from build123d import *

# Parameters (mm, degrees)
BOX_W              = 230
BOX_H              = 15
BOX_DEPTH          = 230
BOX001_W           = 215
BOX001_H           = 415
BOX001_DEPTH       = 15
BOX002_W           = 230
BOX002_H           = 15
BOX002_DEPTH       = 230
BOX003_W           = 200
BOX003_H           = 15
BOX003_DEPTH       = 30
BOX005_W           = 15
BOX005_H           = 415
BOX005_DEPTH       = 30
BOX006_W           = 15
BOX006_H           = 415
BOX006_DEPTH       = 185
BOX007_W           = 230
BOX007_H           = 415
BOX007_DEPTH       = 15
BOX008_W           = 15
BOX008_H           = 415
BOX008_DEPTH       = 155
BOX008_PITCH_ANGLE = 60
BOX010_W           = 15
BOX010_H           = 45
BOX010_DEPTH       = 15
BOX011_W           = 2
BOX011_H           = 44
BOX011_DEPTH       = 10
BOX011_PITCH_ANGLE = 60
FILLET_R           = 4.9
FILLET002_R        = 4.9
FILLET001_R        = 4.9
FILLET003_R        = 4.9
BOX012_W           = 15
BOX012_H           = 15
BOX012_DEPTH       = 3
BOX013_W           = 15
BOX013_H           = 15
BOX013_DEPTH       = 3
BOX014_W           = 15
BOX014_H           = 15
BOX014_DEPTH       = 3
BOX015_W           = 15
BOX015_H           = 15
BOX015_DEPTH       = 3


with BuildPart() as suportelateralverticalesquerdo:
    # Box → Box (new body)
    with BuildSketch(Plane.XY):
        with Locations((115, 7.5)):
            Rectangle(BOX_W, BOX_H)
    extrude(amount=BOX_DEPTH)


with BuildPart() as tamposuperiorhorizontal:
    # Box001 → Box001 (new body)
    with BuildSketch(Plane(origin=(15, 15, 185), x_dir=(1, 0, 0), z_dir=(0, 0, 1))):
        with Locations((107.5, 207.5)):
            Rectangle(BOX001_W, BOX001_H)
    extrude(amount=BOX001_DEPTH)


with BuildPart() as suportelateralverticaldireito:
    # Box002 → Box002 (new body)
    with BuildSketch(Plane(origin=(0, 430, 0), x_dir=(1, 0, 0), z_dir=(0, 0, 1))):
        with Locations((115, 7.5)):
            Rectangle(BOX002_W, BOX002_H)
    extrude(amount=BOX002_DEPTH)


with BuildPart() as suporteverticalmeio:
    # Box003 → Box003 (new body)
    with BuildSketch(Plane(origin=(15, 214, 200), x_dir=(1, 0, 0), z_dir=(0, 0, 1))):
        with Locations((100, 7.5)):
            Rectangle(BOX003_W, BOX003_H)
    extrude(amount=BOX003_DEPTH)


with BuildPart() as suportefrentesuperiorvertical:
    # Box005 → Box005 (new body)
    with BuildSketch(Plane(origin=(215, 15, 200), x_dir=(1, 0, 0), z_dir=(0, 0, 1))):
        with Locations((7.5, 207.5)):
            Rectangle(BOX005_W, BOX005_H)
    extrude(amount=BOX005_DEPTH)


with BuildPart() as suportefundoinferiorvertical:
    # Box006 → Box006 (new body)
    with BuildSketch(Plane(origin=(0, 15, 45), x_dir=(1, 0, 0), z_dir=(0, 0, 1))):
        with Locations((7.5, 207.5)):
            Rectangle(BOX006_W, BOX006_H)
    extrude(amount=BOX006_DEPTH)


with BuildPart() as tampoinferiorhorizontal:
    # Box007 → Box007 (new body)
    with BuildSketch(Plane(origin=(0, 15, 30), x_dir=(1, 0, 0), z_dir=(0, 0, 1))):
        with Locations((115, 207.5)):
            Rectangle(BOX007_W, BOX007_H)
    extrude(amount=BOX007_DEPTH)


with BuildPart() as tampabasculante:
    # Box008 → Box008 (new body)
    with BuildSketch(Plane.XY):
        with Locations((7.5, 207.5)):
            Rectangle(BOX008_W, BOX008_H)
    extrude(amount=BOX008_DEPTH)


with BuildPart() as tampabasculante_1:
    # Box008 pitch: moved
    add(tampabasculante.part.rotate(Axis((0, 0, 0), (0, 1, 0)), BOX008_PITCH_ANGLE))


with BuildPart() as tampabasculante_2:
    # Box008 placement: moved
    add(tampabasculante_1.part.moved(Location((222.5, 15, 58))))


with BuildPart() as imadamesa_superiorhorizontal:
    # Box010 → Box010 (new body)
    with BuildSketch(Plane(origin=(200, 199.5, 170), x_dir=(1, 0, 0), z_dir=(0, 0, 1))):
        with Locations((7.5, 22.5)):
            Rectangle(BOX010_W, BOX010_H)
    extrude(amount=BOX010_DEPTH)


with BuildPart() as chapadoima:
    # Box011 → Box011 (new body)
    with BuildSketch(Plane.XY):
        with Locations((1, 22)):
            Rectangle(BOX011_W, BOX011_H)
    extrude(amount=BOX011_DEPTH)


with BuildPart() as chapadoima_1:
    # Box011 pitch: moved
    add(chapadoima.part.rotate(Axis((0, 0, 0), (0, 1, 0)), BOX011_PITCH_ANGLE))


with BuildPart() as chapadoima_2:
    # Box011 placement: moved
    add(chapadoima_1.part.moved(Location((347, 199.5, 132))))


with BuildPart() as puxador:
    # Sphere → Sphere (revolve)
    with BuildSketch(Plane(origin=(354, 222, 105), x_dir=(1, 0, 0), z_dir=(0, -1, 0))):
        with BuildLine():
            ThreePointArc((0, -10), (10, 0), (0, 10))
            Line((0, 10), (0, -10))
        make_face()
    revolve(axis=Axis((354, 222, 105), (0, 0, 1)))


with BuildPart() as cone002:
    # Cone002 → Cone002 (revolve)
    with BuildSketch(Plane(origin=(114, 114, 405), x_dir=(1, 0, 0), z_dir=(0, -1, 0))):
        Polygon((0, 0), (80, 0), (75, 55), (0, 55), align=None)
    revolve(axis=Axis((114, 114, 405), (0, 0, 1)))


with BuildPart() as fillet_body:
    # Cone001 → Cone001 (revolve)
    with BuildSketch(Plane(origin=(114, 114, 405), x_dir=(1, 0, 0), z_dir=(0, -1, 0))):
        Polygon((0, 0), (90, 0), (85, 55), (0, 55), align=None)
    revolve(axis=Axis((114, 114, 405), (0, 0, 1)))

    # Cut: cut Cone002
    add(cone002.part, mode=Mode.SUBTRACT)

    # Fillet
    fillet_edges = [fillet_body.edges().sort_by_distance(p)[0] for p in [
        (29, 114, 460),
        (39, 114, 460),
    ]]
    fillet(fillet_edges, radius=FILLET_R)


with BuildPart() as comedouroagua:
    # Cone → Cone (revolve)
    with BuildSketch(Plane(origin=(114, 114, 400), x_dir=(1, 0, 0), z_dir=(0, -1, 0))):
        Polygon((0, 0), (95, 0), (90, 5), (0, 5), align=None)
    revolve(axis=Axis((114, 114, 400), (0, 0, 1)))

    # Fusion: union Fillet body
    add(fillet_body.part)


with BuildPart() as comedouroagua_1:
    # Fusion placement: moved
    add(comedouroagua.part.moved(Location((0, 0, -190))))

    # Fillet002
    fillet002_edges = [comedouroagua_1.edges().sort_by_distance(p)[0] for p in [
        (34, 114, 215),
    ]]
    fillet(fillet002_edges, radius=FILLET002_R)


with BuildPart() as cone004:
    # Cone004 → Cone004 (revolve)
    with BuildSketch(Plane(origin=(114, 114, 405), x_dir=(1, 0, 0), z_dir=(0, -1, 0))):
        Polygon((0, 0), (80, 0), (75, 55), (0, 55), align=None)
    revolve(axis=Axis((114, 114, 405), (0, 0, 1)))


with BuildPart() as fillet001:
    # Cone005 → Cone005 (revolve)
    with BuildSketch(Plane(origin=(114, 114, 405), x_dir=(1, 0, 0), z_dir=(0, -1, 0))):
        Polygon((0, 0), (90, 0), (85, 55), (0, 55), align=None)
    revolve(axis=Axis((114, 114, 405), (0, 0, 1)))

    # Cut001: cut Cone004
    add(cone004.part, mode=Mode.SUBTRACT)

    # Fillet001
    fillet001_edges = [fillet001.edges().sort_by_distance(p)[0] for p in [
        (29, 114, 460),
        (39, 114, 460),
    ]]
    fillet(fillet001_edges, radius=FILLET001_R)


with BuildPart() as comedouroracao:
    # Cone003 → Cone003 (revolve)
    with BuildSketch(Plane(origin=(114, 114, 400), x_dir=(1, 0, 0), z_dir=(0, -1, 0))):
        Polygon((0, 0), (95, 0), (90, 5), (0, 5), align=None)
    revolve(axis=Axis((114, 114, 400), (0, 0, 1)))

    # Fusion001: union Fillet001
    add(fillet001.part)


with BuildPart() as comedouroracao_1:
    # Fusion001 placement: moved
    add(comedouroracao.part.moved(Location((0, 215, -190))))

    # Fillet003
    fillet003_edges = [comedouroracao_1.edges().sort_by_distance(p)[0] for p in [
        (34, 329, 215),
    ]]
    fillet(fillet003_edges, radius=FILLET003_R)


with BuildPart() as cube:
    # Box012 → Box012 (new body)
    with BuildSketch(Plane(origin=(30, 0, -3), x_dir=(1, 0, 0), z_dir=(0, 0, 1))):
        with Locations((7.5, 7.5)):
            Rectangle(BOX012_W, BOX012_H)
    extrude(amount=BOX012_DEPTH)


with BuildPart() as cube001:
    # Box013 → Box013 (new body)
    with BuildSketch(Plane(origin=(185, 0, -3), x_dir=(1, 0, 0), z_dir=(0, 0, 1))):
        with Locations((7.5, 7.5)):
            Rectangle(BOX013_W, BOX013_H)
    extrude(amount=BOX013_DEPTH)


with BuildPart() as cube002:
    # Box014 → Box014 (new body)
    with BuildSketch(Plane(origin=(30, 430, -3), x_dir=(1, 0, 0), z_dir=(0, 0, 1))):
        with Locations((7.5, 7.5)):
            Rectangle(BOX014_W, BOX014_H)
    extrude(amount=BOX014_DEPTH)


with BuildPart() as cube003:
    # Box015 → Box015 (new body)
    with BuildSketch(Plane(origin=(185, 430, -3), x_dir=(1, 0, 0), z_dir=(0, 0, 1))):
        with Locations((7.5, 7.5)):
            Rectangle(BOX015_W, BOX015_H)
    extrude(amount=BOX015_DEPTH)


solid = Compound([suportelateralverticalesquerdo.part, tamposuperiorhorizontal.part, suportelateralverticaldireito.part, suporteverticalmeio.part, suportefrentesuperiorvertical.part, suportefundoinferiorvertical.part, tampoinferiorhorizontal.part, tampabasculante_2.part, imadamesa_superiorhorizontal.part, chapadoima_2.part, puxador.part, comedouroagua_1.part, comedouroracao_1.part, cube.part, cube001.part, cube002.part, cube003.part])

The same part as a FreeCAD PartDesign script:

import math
import FreeCAD as App
import Part
import Sketcher
from FreeCAD import Vector
Q = App.Units.Quantity


def edges_at(feature, points):
    """Names of the edges that pass closest to the given points."""
    edges = feature.Shape.Edges
    near = lambda p: min(range(len(edges)), key=lambda i: edges[i].distToShape(Part.Vertex(*p))[0])
    return sorted({f"Edge{near(p) + 1}" for p in points})


def add_polygon(sketch, points):
    """Adds a closed chain of lines whose ends are joined by coincident constraints."""
    first, n = sketch.GeometryCount, len(points)
    for a, b in zip(points, points[1:] + points[:1]):
        sketch.addGeometry(Part.LineSegment(App.Vector(*a, 0), App.Vector(*b, 0)), False)
    for i in range(n):
        sketch.addConstraint(Sketcher.Constraint("Coincident", first + i, 2, first + (i + 1) % n, 1))

doc = App.newDocument("Part")
params = doc.addObject("Spreadsheet::Sheet", "Params")
for row, (alias, value) in enumerate([
    ("sketch1_width", "230 mm"),
    ("sketch1_height", "15 mm"),
    ("pad1_length", "230 mm"),
    ("sketch2_width", "215 mm"),
    ("sketch2_height", "415 mm"),
    ("pad2_length", "15 mm"),
    ("sketch3_width", "230 mm"),
    ("sketch3_height", "15 mm"),
    ("pad3_length", "230 mm"),
    ("sketch4_width", "200 mm"),
    ("sketch4_height", "15 mm"),
    ("pad4_length", "30 mm"),
    ("sketch5_width", "15 mm"),
    ("sketch5_height", "415 mm"),
    ("pad5_length", "30 mm"),
    ("sketch6_width", "15 mm"),
    ("sketch6_height", "415 mm"),
    ("pad6_length", "185 mm"),
    ("sketch7_width", "230 mm"),
    ("sketch7_height", "415 mm"),
    ("pad7_length", "15 mm"),
    ("sketch8_width", "15 mm"),
    ("sketch8_height", "415 mm"),
    ("pad8_length", "155 mm"),
    ("sketch9_width", "15 mm"),
    ("sketch9_height", "45 mm"),
    ("pad9_length", "15 mm"),
    ("sketch10_width", "2 mm"),
    ("sketch10_height", "44 mm"),
    ("pad10_length", "10 mm"),
    ("sketch11_radius", "10 mm"),
    ("revolution_angle", "360 deg"),
    ("sketch12_width", "80 mm"),
    ("sketch12_width2", "75 mm"),
    ("sketch12_height", "55 mm"),
    ("revolution2_angle", "360 deg"),
    ("sketch13_width", "90 mm"),
    ("sketch13_width2", "85 mm"),
    ("sketch13_height", "55 mm"),
    ("revolution3_angle", "360 deg"),
    ("fillet_radius", "4.9 mm"),
    ("sketch14_width", "95 mm"),
    ("sketch14_width2", "90 mm"),
    ("sketch14_height", "5 mm"),
    ("revolution4_angle", "360 deg"),
    ("fillet2_radius", "4.9 mm"),
    ("sketch15_width", "80 mm"),
    ("sketch15_width2", "75 mm"),
    ("sketch15_height", "55 mm"),
    ("revolution5_angle", "360 deg"),
    ("sketch16_width", "90 mm"),
    ("sketch16_width2", "85 mm"),
    ("sketch16_height", "55 mm"),
    ("revolution6_angle", "360 deg"),
    ("fillet3_radius", "4.9 mm"),
    ("sketch17_width", "95 mm"),
    ("sketch17_width2", "90 mm"),
    ("sketch17_height", "5 mm"),
    ("revolution7_angle", "360 deg"),
    ("fillet4_radius", "4.9 mm"),
    ("sketch18_width", "15 mm"),
    ("pad11_length", "3 mm"),
    ("sketch19_width", "15 mm"),
    ("pad12_length", "3 mm"),
    ("sketch20_width", "15 mm"),
    ("pad13_length", "3 mm"),
    ("sketch21_width", "15 mm"),
    ("pad14_length", "3 mm"),
], start=1):
    params.set(f"A{row}", alias)
    params.set(f"B{row}", "=" + value)
    params.setAlias(f"B{row}", alias)

body = doc.addObject("PartDesign::Body", "Body")

sketch1 = body.newObject("Sketcher::SketchObject", "Sketch")
sketch1.AttachmentSupport = (doc.getObject("XY_Plane"), [""])
sketch1.MapMode = "FlatFace"
add_polygon(sketch1, [(0, 15), (0, 0), (230, 0), (230, 15)])
sketch1.addConstraint(Sketcher.Constraint("Vertical", 0))
sketch1.addConstraint(Sketcher.Constraint("Horizontal", 1))
sketch1.addConstraint(Sketcher.Constraint("Vertical", 2))
sketch1.addConstraint(Sketcher.Constraint("Horizontal", 3))
sketch1.addConstraint(Sketcher.Constraint("Coincident", 0, 2, -1, 1))
sketch1.addConstraint(Sketcher.Constraint("DistanceX", 1, 1, 1, 2, Q("230 mm")))
sketch1.addConstraint(Sketcher.Constraint("DistanceY", 0, 2, 0, 1, Q("15 mm")))
sketch1.setExpression("Constraints[9]", "Params.sketch1_width")
sketch1.setExpression("Constraints[10]", "Params.sketch1_height")
pad1 = body.newObject("PartDesign::Pad", "Pad")
pad1.Profile = sketch1
pad1.setExpression("Length", "Params.pad1_length")
body2 = doc.addObject("PartDesign::Body", "Body001")

sketch2 = body2.newObject("Sketcher::SketchObject", "Sketch001")
sketch2.AttachmentSupport = (doc.getObject("XY_Plane001"), [""])
sketch2.MapMode = "FlatFace"
sketch2.AttachmentOffset = App.Placement(Vector(0, 0, 185), App.Rotation())
add_polygon(sketch2, [(15, 430), (15, 15), (230, 15), (230, 430)])
sketch2.addConstraint(Sketcher.Constraint("Vertical", 0))
sketch2.addConstraint(Sketcher.Constraint("Horizontal", 1))
sketch2.addConstraint(Sketcher.Constraint("Vertical", 2))
sketch2.addConstraint(Sketcher.Constraint("Horizontal", 3))
sketch2.addConstraint(Sketcher.Constraint("DistanceX", 1, 1, 1, 2, Q("215 mm")))
sketch2.addConstraint(Sketcher.Constraint("DistanceY", 0, 2, 0, 1, Q("415 mm")))
sketch2.addConstraint(Sketcher.Constraint("DistanceX", -1, 1, 0, 2, Q("15 mm")))
sketch2.addConstraint(Sketcher.Constraint("DistanceY", -1, 1, 0, 2, Q("15 mm")))
sketch2.setExpression("Constraints[8]", "Params.sketch2_width")
sketch2.setExpression("Constraints[9]", "Params.sketch2_height")
pad2 = body2.newObject("PartDesign::Pad", "Pad001")
pad2.Profile = sketch2
pad2.setExpression("Length", "Params.pad2_length")
body3 = doc.addObject("PartDesign::Body", "Body002")

sketch3 = body3.newObject("Sketcher::SketchObject", "Sketch002")
sketch3.AttachmentSupport = (doc.getObject("XY_Plane002"), [""])
sketch3.MapMode = "FlatFace"
add_polygon(sketch3, [(0, 445), (0, 430), (230, 430), (230, 445)])
sketch3.addConstraint(Sketcher.Constraint("Vertical", 0))
sketch3.addConstraint(Sketcher.Constraint("Horizontal", 1))
sketch3.addConstraint(Sketcher.Constraint("Vertical", 2))
sketch3.addConstraint(Sketcher.Constraint("Horizontal", 3))
sketch3.addConstraint(Sketcher.Constraint("PointOnObject", 0, 2, -2))
sketch3.addConstraint(Sketcher.Constraint("DistanceX", 1, 1, 1, 2, Q("230 mm")))
sketch3.addConstraint(Sketcher.Constraint("DistanceY", 0, 2, 0, 1, Q("15 mm")))
sketch3.addConstraint(Sketcher.Constraint("DistanceY", -1, 1, 0, 2, Q("430 mm")))
sketch3.setExpression("Constraints[9]", "Params.sketch3_width")
sketch3.setExpression("Constraints[10]", "Params.sketch3_height")
pad3 = body3.newObject("PartDesign::Pad", "Pad002")
pad3.Profile = sketch3
pad3.setExpression("Length", "Params.pad3_length")
body4 = doc.addObject("PartDesign::Body", "Body003")

sketch4 = body4.newObject("Sketcher::SketchObject", "Sketch003")
sketch4.AttachmentSupport = (doc.getObject("XY_Plane003"), [""])
sketch4.MapMode = "FlatFace"
sketch4.AttachmentOffset = App.Placement(Vector(0, 0, 200), App.Rotation())
add_polygon(sketch4, [(15, 229), (15, 214), (215, 214), (215, 229)])
sketch4.addConstraint(Sketcher.Constraint("Vertical", 0))
sketch4.addConstraint(Sketcher.Constraint("Horizontal", 1))
sketch4.addConstraint(Sketcher.Constraint("Vertical", 2))
sketch4.addConstraint(Sketcher.Constraint("Horizontal", 3))
sketch4.addConstraint(Sketcher.Constraint("DistanceX", 1, 1, 1, 2, Q("200 mm")))
sketch4.addConstraint(Sketcher.Constraint("DistanceY", 0, 2, 0, 1, Q("15 mm")))
sketch4.addConstraint(Sketcher.Constraint("DistanceX", -1, 1, 0, 2, Q("15 mm")))
sketch4.addConstraint(Sketcher.Constraint("DistanceY", -1, 1, 0, 2, Q("214 mm")))
sketch4.setExpression("Constraints[8]", "Params.sketch4_width")
sketch4.setExpression("Constraints[9]", "Params.sketch4_height")
pad4 = body4.newObject("PartDesign::Pad", "Pad003")
pad4.Profile = sketch4
pad4.setExpression("Length", "Params.pad4_length")
body5 = doc.addObject("PartDesign::Body", "Body004")

sketch5 = body5.newObject("Sketcher::SketchObject", "Sketch004")
sketch5.AttachmentSupport = (doc.getObject("XY_Plane004"), [""])
sketch5.MapMode = "FlatFace"
sketch5.AttachmentOffset = App.Placement(Vector(0, 0, 200), App.Rotation())
add_polygon(sketch5, [(215, 430), (215, 15), (230, 15), (230, 430)])
sketch5.addConstraint(Sketcher.Constraint("Vertical", 0))
sketch5.addConstraint(Sketcher.Constraint("Horizontal", 1))
sketch5.addConstraint(Sketcher.Constraint("Vertical", 2))
sketch5.addConstraint(Sketcher.Constraint("Horizontal", 3))
sketch5.addConstraint(Sketcher.Constraint("DistanceX", 1, 1, 1, 2, Q("15 mm")))
sketch5.addConstraint(Sketcher.Constraint("DistanceY", 0, 2, 0, 1, Q("415 mm")))
sketch5.addConstraint(Sketcher.Constraint("DistanceX", -1, 1, 0, 2, Q("215 mm")))
sketch5.addConstraint(Sketcher.Constraint("DistanceY", -1, 1, 0, 2, Q("15 mm")))
sketch5.setExpression("Constraints[8]", "Params.sketch5_width")
sketch5.setExpression("Constraints[9]", "Params.sketch5_height")
pad5 = body5.newObject("PartDesign::Pad", "Pad004")
pad5.Profile = sketch5
pad5.setExpression("Length", "Params.pad5_length")
body6 = doc.addObject("PartDesign::Body", "Body005")

sketch6 = body6.newObject("Sketcher::SketchObject", "Sketch005")
sketch6.AttachmentSupport = (doc.getObject("XY_Plane005"), [""])
sketch6.MapMode = "FlatFace"
sketch6.AttachmentOffset = App.Placement(Vector(0, 0, 45), App.Rotation())
add_polygon(sketch6, [(0, 430), (0, 15), (15, 15), (15, 430)])
sketch6.addConstraint(Sketcher.Constraint("Vertical", 0))
sketch6.addConstraint(Sketcher.Constraint("Horizontal", 1))
sketch6.addConstraint(Sketcher.Constraint("Vertical", 2))
sketch6.addConstraint(Sketcher.Constraint("Horizontal", 3))
sketch6.addConstraint(Sketcher.Constraint("PointOnObject", 0, 2, -2))
sketch6.addConstraint(Sketcher.Constraint("DistanceX", 1, 1, 1, 2, Q("15 mm")))
sketch6.addConstraint(Sketcher.Constraint("DistanceY", 0, 2, 0, 1, Q("415 mm")))
sketch6.addConstraint(Sketcher.Constraint("DistanceY", -1, 1, 0, 2, Q("15 mm")))
sketch6.setExpression("Constraints[9]", "Params.sketch6_width")
sketch6.setExpression("Constraints[10]", "Params.sketch6_height")
pad6 = body6.newObject("PartDesign::Pad", "Pad005")
pad6.Profile = sketch6
pad6.setExpression("Length", "Params.pad6_length")
body7 = doc.addObject("PartDesign::Body", "Body006")

sketch7 = body7.newObject("Sketcher::SketchObject", "Sketch006")
sketch7.AttachmentSupport = (doc.getObject("XY_Plane006"), [""])
sketch7.MapMode = "FlatFace"
sketch7.AttachmentOffset = App.Placement(Vector(0, 0, 30), App.Rotation())
add_polygon(sketch7, [(0, 430), (0, 15), (230, 15), (230, 430)])
sketch7.addConstraint(Sketcher.Constraint("Vertical", 0))
sketch7.addConstraint(Sketcher.Constraint("Horizontal", 1))
sketch7.addConstraint(Sketcher.Constraint("Vertical", 2))
sketch7.addConstraint(Sketcher.Constraint("Horizontal", 3))
sketch7.addConstraint(Sketcher.Constraint("PointOnObject", 0, 2, -2))
sketch7.addConstraint(Sketcher.Constraint("DistanceX", 1, 1, 1, 2, Q("230 mm")))
sketch7.addConstraint(Sketcher.Constraint("DistanceY", 0, 2, 0, 1, Q("415 mm")))
sketch7.addConstraint(Sketcher.Constraint("DistanceY", -1, 1, 0, 2, Q("15 mm")))
sketch7.setExpression("Constraints[9]", "Params.sketch7_width")
sketch7.setExpression("Constraints[10]", "Params.sketch7_height")
pad7 = body7.newObject("PartDesign::Pad", "Pad006")
pad7.Profile = sketch7
pad7.setExpression("Length", "Params.pad7_length")
body8 = doc.addObject("PartDesign::Body", "Body007")

sketch8 = body8.newObject("Sketcher::SketchObject", "Sketch007")
sketch8.AttachmentSupport = (doc.getObject("XY_Plane007"), [""])
sketch8.MapMode = "FlatFace"
add_polygon(sketch8, [(0, 415), (0, 0), (15, 0), (15, 415)])
sketch8.addConstraint(Sketcher.Constraint("Vertical", 0))
sketch8.addConstraint(Sketcher.Constraint("Horizontal", 1))
sketch8.addConstraint(Sketcher.Constraint("Vertical", 2))
sketch8.addConstraint(Sketcher.Constraint("Horizontal", 3))
sketch8.addConstraint(Sketcher.Constraint("Coincident", 0, 2, -1, 1))
sketch8.addConstraint(Sketcher.Constraint("DistanceX", 1, 1, 1, 2, Q("15 mm")))
sketch8.addConstraint(Sketcher.Constraint("DistanceY", 0, 2, 0, 1, Q("415 mm")))
sketch8.setExpression("Constraints[9]", "Params.sketch8_width")
sketch8.setExpression("Constraints[10]", "Params.sketch8_height")
pad8 = body8.newObject("PartDesign::Pad", "Pad007")
pad8.Profile = sketch8
pad8.setExpression("Length", "Params.pad8_length")
body9 = doc.addObject("PartDesign::Body", "Body008")
doc.recompute()

body8.Placement = App.Placement(Vector(0, 0, 0), App.Rotation(Vector(0, 1, 0), 60))
boolean = body9.newObject("PartDesign::Boolean", "Boolean")
boolean.Type = "Fuse"
boolean.addObjects([body8])
body10 = doc.addObject("PartDesign::Body", "Body009")
doc.recompute()

body9.Placement = App.Placement(Vector(222.5, 15, 58), App.Rotation(Vector(0, 0, 1), 0))
boolean2 = body10.newObject("PartDesign::Boolean", "Boolean001")
boolean2.Type = "Fuse"
boolean2.addObjects([body9])
body11 = doc.addObject("PartDesign::Body", "Body010")

sketch9 = body11.newObject("Sketcher::SketchObject", "Sketch008")
sketch9.AttachmentSupport = (doc.getObject("XY_Plane010"), [""])
sketch9.MapMode = "FlatFace"
sketch9.AttachmentOffset = App.Placement(Vector(0, 0, 170), App.Rotation())
add_polygon(sketch9, [(200, 244), (200, 200), (215, 200), (215, 244)])
sketch9.addConstraint(Sketcher.Constraint("Vertical", 0))
sketch9.addConstraint(Sketcher.Constraint("Horizontal", 1))
sketch9.addConstraint(Sketcher.Constraint("Vertical", 2))
sketch9.addConstraint(Sketcher.Constraint("Horizontal", 3))
sketch9.addConstraint(Sketcher.Constraint("DistanceX", 1, 1, 1, 2, Q("15 mm")))
sketch9.addConstraint(Sketcher.Constraint("DistanceY", 0, 2, 0, 1, Q("45 mm")))
sketch9.addConstraint(Sketcher.Constraint("DistanceX", -1, 1, 0, 2, Q("200 mm")))
sketch9.addConstraint(Sketcher.Constraint("DistanceY", -1, 1, 0, 2, Q("199.5 mm")))
sketch9.setExpression("Constraints[8]", "Params.sketch9_width")
sketch9.setExpression("Constraints[9]", "Params.sketch9_height")
pad9 = body11.newObject("PartDesign::Pad", "Pad008")
pad9.Profile = sketch9
pad9.setExpression("Length", "Params.pad9_length")
body12 = doc.addObject("PartDesign::Body", "Body011")

sketch10 = body12.newObject("Sketcher::SketchObject", "Sketch009")
sketch10.AttachmentSupport = (doc.getObject("XY_Plane011"), [""])
sketch10.MapMode = "FlatFace"
add_polygon(sketch10, [(0, 44), (0, 0), (2, 0), (2, 44)])
sketch10.addConstraint(Sketcher.Constraint("Vertical", 0))
sketch10.addConstraint(Sketcher.Constraint("Horizontal", 1))
sketch10.addConstraint(Sketcher.Constraint("Vertical", 2))
sketch10.addConstraint(Sketcher.Constraint("Horizontal", 3))
sketch10.addConstraint(Sketcher.Constraint("Coincident", 0, 2, -1, 1))
sketch10.addConstraint(Sketcher.Constraint("DistanceX", 1, 1, 1, 2, Q("2 mm")))
sketch10.addConstraint(Sketcher.Constraint("DistanceY", 0, 2, 0, 1, Q("44 mm")))
sketch10.setExpression("Constraints[9]", "Params.sketch10_width")
sketch10.setExpression("Constraints[10]", "Params.sketch10_height")
pad10 = body12.newObject("PartDesign::Pad", "Pad009")
pad10.Profile = sketch10
pad10.setExpression("Length", "Params.pad10_length")
body13 = doc.addObject("PartDesign::Body", "Body012")
doc.recompute()

body12.Placement = App.Placement(Vector(0, 0, 0), App.Rotation(Vector(0, 1, 0), 60))
boolean3 = body13.newObject("PartDesign::Boolean", "Boolean002")
boolean3.Type = "Fuse"
boolean3.addObjects([body12])
body14 = doc.addObject("PartDesign::Body", "Body013")
doc.recompute()

body13.Placement = App.Placement(Vector(347, 199.5, 132), App.Rotation(Vector(0, 0, 1), 0))
boolean4 = body14.newObject("PartDesign::Boolean", "Boolean003")
boolean4.Type = "Fuse"
boolean4.addObjects([body13])
body15 = doc.addObject("PartDesign::Body", "Body014")

sketch11 = body15.newObject("Sketcher::SketchObject", "Sketch010")
sketch11.AttachmentSupport = (doc.getObject("XZ_Plane014"), [""])
sketch11.MapMode = "FlatFace"
sketch11.AttachmentOffset = App.Placement(Vector(0, 0, -222), App.Rotation())
sketch11.addGeometry(Part.ArcOfCircle(Part.Circle(Vector(354, 105, 0), Vector(0, 0, 1), 10), math.radians(-90), math.radians(90)), False)
sketch11.addGeometry(Part.LineSegment(Vector(354, 115, 0), Vector(354, 95, 0)), False)
sketch11.addGeometry(Part.LineSegment(Vector(354, 95, 0), Vector(354, 115, 0)), True)
sketch11.addConstraint(Sketcher.Constraint("Coincident", 0, 1, 1, 2))
sketch11.addConstraint(Sketcher.Constraint("Coincident", 1, 1, 0, 2))
sketch11.addConstraint(Sketcher.Constraint("Vertical", 1))
sketch11.addConstraint(Sketcher.Constraint("Vertical", 2))
sketch11.addConstraint(Sketcher.Constraint("Coincident", 2, 1, 0, 1))
sketch11.addConstraint(Sketcher.Constraint("Equal", 1, 2))
sketch11.addConstraint(Sketcher.Constraint("Radius", 0, Q("10 mm")))
sketch11.addConstraint(Sketcher.Constraint("DistanceX", -1, 1, 0, 3, Q("354 mm")))
sketch11.addConstraint(Sketcher.Constraint("DistanceY", -1, 1, 0, 3, Q("105 mm")))
sketch11.addConstraint(Sketcher.Constraint("DistanceX", -1, 1, 0, 1, Q("354 mm")))
sketch11.setExpression("Constraints[6]", "Params.sketch11_radius")
revolution = body15.newObject("PartDesign::Revolution", "Revolution")
revolution.Profile = sketch11
revolution.ReferenceAxis = (sketch11, ["Axis0"])
revolution.setExpression("Angle", "Params.revolution_angle")
body16 = doc.addObject("PartDesign::Body", "Body015")

sketch12 = body16.newObject("Sketcher::SketchObject", "Sketch011")
sketch12.AttachmentSupport = (doc.getObject("XZ_Plane015"), [""])
sketch12.MapMode = "FlatFace"
sketch12.AttachmentOffset = App.Placement(Vector(0, 0, -114), App.Rotation())
add_polygon(sketch12, [(114, 405), (194, 405), (189, 460), (114, 460)])
sketch12.addGeometry(Part.LineSegment(Vector(114, 405, 0), Vector(114, 460, 0)), True)
sketch12.addConstraint(Sketcher.Constraint("Horizontal", 0))
sketch12.addConstraint(Sketcher.Constraint("Horizontal", 2))
sketch12.addConstraint(Sketcher.Constraint("Vertical", 3))
sketch12.addConstraint(Sketcher.Constraint("Vertical", 4))
sketch12.addConstraint(Sketcher.Constraint("Coincident", 4, 1, 3, 2))
sketch12.addConstraint(Sketcher.Constraint("Horizontal", 1, 2, 4, 2))
sketch12.addConstraint(Sketcher.Constraint("DistanceX", 0, 1, 0, 2, Q("80 mm")))
sketch12.addConstraint(Sketcher.Constraint("DistanceX", 2, 2, 2, 1, Q("75 mm")))
sketch12.addConstraint(Sketcher.Constraint("DistanceY", 3, 2, 3, 1, Q("55 mm")))
sketch12.addConstraint(Sketcher.Constraint("DistanceX", -1, 1, 0, 2, Q("194 mm")))
sketch12.addConstraint(Sketcher.Constraint("DistanceY", -1, 1, 0, 2, Q("405 mm")))
sketch12.setExpression("Constraints[10]", "Params.sketch12_width")
sketch12.setExpression("Constraints[11]", "Params.sketch12_width2")
sketch12.setExpression("Constraints[12]", "Params.sketch12_height")
revolution2 = body16.newObject("PartDesign::Revolution", "Revolution001")
revolution2.Profile = sketch12
revolution2.ReferenceAxis = (sketch12, ["Axis0"])
revolution2.setExpression("Angle", "Params.revolution2_angle")
body17 = doc.addObject("PartDesign::Body", "Body016")

sketch13 = body17.newObject("Sketcher::SketchObject", "Sketch012")
sketch13.AttachmentSupport = (doc.getObject("XZ_Plane016"), [""])
sketch13.MapMode = "FlatFace"
sketch13.AttachmentOffset = App.Placement(Vector(0, 0, -114), App.Rotation())
add_polygon(sketch13, [(114, 405), (204, 405), (199, 460), (114, 460)])
sketch13.addGeometry(Part.LineSegment(Vector(114, 405, 0), Vector(114, 460, 0)), True)
sketch13.addConstraint(Sketcher.Constraint("Horizontal", 0))
sketch13.addConstraint(Sketcher.Constraint("Horizontal", 2))
sketch13.addConstraint(Sketcher.Constraint("Vertical", 3))
sketch13.addConstraint(Sketcher.Constraint("Vertical", 4))
sketch13.addConstraint(Sketcher.Constraint("Coincident", 4, 1, 3, 2))
sketch13.addConstraint(Sketcher.Constraint("Horizontal", 1, 2, 4, 2))
sketch13.addConstraint(Sketcher.Constraint("DistanceX", 0, 1, 0, 2, Q("90 mm")))
sketch13.addConstraint(Sketcher.Constraint("DistanceX", 2, 2, 2, 1, Q("85 mm")))
sketch13.addConstraint(Sketcher.Constraint("DistanceY", 3, 2, 3, 1, Q("55 mm")))
sketch13.addConstraint(Sketcher.Constraint("DistanceX", -1, 1, 0, 2, Q("204 mm")))
sketch13.addConstraint(Sketcher.Constraint("DistanceY", -1, 1, 0, 2, Q("405 mm")))
sketch13.setExpression("Constraints[10]", "Params.sketch13_width")
sketch13.setExpression("Constraints[11]", "Params.sketch13_width2")
sketch13.setExpression("Constraints[12]", "Params.sketch13_height")
revolution3 = body17.newObject("PartDesign::Revolution", "Revolution002")
revolution3.Profile = sketch13
revolution3.ReferenceAxis = (sketch13, ["Axis0"])
revolution3.setExpression("Angle", "Params.revolution3_angle")
doc.recompute()

boolean5 = body17.newObject("PartDesign::Boolean", "Boolean004")
boolean5.Type = "Cut"
boolean5.addObjects([body16])
doc.recompute()

fillet = body17.newObject("PartDesign::Fillet", "Fillet")
fillet.Base = (boolean5, edges_at(boolean5, [(29, 114, 460), (39, 114, 460)]))
fillet.setExpression("Radius", "Params.fillet_radius")
body18 = doc.addObject("PartDesign::Body", "Body017")

sketch14 = body18.newObject("Sketcher::SketchObject", "Sketch013")
sketch14.AttachmentSupport = (doc.getObject("XZ_Plane017"), [""])
sketch14.MapMode = "FlatFace"
sketch14.AttachmentOffset = App.Placement(Vector(0, 0, -114), App.Rotation())
add_polygon(sketch14, [(114, 400), (209, 400), (204, 405), (114, 405)])
sketch14.addGeometry(Part.LineSegment(Vector(114, 400, 0), Vector(114, 405, 0)), True)
sketch14.addConstraint(Sketcher.Constraint("Horizontal", 0))
sketch14.addConstraint(Sketcher.Constraint("Horizontal", 2))
sketch14.addConstraint(Sketcher.Constraint("Vertical", 3))
sketch14.addConstraint(Sketcher.Constraint("Vertical", 4))
sketch14.addConstraint(Sketcher.Constraint("Coincident", 4, 1, 3, 2))
sketch14.addConstraint(Sketcher.Constraint("Horizontal", 1, 2, 4, 2))
sketch14.addConstraint(Sketcher.Constraint("DistanceX", 0, 1, 0, 2, Q("95 mm")))
sketch14.addConstraint(Sketcher.Constraint("DistanceX", 2, 2, 2, 1, Q("90 mm")))
sketch14.addConstraint(Sketcher.Constraint("DistanceY", 3, 2, 3, 1, Q("5 mm")))
sketch14.addConstraint(Sketcher.Constraint("DistanceX", -1, 1, 0, 2, Q("209 mm")))
sketch14.addConstraint(Sketcher.Constraint("DistanceY", -1, 1, 0, 2, Q("400 mm")))
sketch14.setExpression("Constraints[10]", "Params.sketch14_width")
sketch14.setExpression("Constraints[11]", "Params.sketch14_width2")
sketch14.setExpression("Constraints[12]", "Params.sketch14_height")
revolution4 = body18.newObject("PartDesign::Revolution", "Revolution003")
revolution4.Profile = sketch14
revolution4.ReferenceAxis = (sketch14, ["Axis0"])
revolution4.setExpression("Angle", "Params.revolution4_angle")
doc.recompute()

boolean6 = body18.newObject("PartDesign::Boolean", "Boolean005")
boolean6.Type = "Fuse"
boolean6.addObjects([body17])
body19 = doc.addObject("PartDesign::Body", "Body018")
doc.recompute()

body18.Placement = App.Placement(Vector(0, 0, -190), App.Rotation(Vector(0, 0, 1), 0))
boolean7 = body19.newObject("PartDesign::Boolean", "Boolean006")
boolean7.Type = "Fuse"
boolean7.addObjects([body18])
doc.recompute()

fillet2 = body19.newObject("PartDesign::Fillet", "Fillet001")
fillet2.Base = (boolean7, edges_at(boolean7, [(34, 114, 215)]))
fillet2.setExpression("Radius", "Params.fillet2_radius")
body20 = doc.addObject("PartDesign::Body", "Body019")

sketch15 = body20.newObject("Sketcher::SketchObject", "Sketch014")
sketch15.AttachmentSupport = (doc.getObject("XZ_Plane019"), [""])
sketch15.MapMode = "FlatFace"
sketch15.AttachmentOffset = App.Placement(Vector(0, 0, -114), App.Rotation())
add_polygon(sketch15, [(114, 405), (194, 405), (189, 460), (114, 460)])
sketch15.addGeometry(Part.LineSegment(Vector(114, 405, 0), Vector(114, 460, 0)), True)
sketch15.addConstraint(Sketcher.Constraint("Horizontal", 0))
sketch15.addConstraint(Sketcher.Constraint("Horizontal", 2))
sketch15.addConstraint(Sketcher.Constraint("Vertical", 3))
sketch15.addConstraint(Sketcher.Constraint("Vertical", 4))
sketch15.addConstraint(Sketcher.Constraint("Coincident", 4, 1, 3, 2))
sketch15.addConstraint(Sketcher.Constraint("Horizontal", 1, 2, 4, 2))
sketch15.addConstraint(Sketcher.Constraint("DistanceX", 0, 1, 0, 2, Q("80 mm")))
sketch15.addConstraint(Sketcher.Constraint("DistanceX", 2, 2, 2, 1, Q("75 mm")))
sketch15.addConstraint(Sketcher.Constraint("DistanceY", 3, 2, 3, 1, Q("55 mm")))
sketch15.addConstraint(Sketcher.Constraint("DistanceX", -1, 1, 0, 2, Q("194 mm")))
sketch15.addConstraint(Sketcher.Constraint("DistanceY", -1, 1, 0, 2, Q("405 mm")))
sketch15.setExpression("Constraints[10]", "Params.sketch15_width")
sketch15.setExpression("Constraints[11]", "Params.sketch15_width2")
sketch15.setExpression("Constraints[12]", "Params.sketch15_height")
revolution5 = body20.newObject("PartDesign::Revolution", "Revolution004")
revolution5.Profile = sketch15
revolution5.ReferenceAxis = (sketch15, ["Axis0"])
revolution5.setExpression("Angle", "Params.revolution5_angle")
body21 = doc.addObject("PartDesign::Body", "Body020")

sketch16 = body21.newObject("Sketcher::SketchObject", "Sketch015")
sketch16.AttachmentSupport = (doc.getObject("XZ_Plane020"), [""])
sketch16.MapMode = "FlatFace"
sketch16.AttachmentOffset = App.Placement(Vector(0, 0, -114), App.Rotation())
add_polygon(sketch16, [(114, 405), (204, 405), (199, 460), (114, 460)])
sketch16.addGeometry(Part.LineSegment(Vector(114, 405, 0), Vector(114, 460, 0)), True)
sketch16.addConstraint(Sketcher.Constraint("Horizontal", 0))
sketch16.addConstraint(Sketcher.Constraint("Horizontal", 2))
sketch16.addConstraint(Sketcher.Constraint("Vertical", 3))
sketch16.addConstraint(Sketcher.Constraint("Vertical", 4))
sketch16.addConstraint(Sketcher.Constraint("Coincident", 4, 1, 3, 2))
sketch16.addConstraint(Sketcher.Constraint("Horizontal", 1, 2, 4, 2))
sketch16.addConstraint(Sketcher.Constraint("DistanceX", 0, 1, 0, 2, Q("90 mm")))
sketch16.addConstraint(Sketcher.Constraint("DistanceX", 2, 2, 2, 1, Q("85 mm")))
sketch16.addConstraint(Sketcher.Constraint("DistanceY", 3, 2, 3, 1, Q("55 mm")))
sketch16.addConstraint(Sketcher.Constraint("DistanceX", -1, 1, 0, 2, Q("204 mm")))
sketch16.addConstraint(Sketcher.Constraint("DistanceY", -1, 1, 0, 2, Q("405 mm")))
sketch16.setExpression("Constraints[10]", "Params.sketch16_width")
sketch16.setExpression("Constraints[11]", "Params.sketch16_width2")
sketch16.setExpression("Constraints[12]", "Params.sketch16_height")
revolution6 = body21.newObject("PartDesign::Revolution", "Revolution005")
revolution6.Profile = sketch16
revolution6.ReferenceAxis = (sketch16, ["Axis0"])
revolution6.setExpression("Angle", "Params.revolution6_angle")
doc.recompute()

boolean8 = body21.newObject("PartDesign::Boolean", "Boolean007")
boolean8.Type = "Cut"
boolean8.addObjects([body20])
doc.recompute()

fillet3 = body21.newObject("PartDesign::Fillet", "Fillet002")
fillet3.Base = (boolean8, edges_at(boolean8, [(29, 114, 460), (39, 114, 460)]))
fillet3.setExpression("Radius", "Params.fillet3_radius")
body22 = doc.addObject("PartDesign::Body", "Body021")

sketch17 = body22.newObject("Sketcher::SketchObject", "Sketch016")
sketch17.AttachmentSupport = (doc.getObject("XZ_Plane021"), [""])
sketch17.MapMode = "FlatFace"
sketch17.AttachmentOffset = App.Placement(Vector(0, 0, -114), App.Rotation())
add_polygon(sketch17, [(114, 400), (209, 400), (204, 405), (114, 405)])
sketch17.addGeometry(Part.LineSegment(Vector(114, 400, 0), Vector(114, 405, 0)), True)
sketch17.addConstraint(Sketcher.Constraint("Horizontal", 0))
sketch17.addConstraint(Sketcher.Constraint("Horizontal", 2))
sketch17.addConstraint(Sketcher.Constraint("Vertical", 3))
sketch17.addConstraint(Sketcher.Constraint("Vertical", 4))
sketch17.addConstraint(Sketcher.Constraint("Coincident", 4, 1, 3, 2))
sketch17.addConstraint(Sketcher.Constraint("Horizontal", 1, 2, 4, 2))
sketch17.addConstraint(Sketcher.Constraint("DistanceX", 0, 1, 0, 2, Q("95 mm")))
sketch17.addConstraint(Sketcher.Constraint("DistanceX", 2, 2, 2, 1, Q("90 mm")))
sketch17.addConstraint(Sketcher.Constraint("DistanceY", 3, 2, 3, 1, Q("5 mm")))
sketch17.addConstraint(Sketcher.Constraint("DistanceX", -1, 1, 0, 2, Q("209 mm")))
sketch17.addConstraint(Sketcher.Constraint("DistanceY", -1, 1, 0, 2, Q("400 mm")))
sketch17.setExpression("Constraints[10]", "Params.sketch17_width")
sketch17.setExpression("Constraints[11]", "Params.sketch17_width2")
sketch17.setExpression("Constraints[12]", "Params.sketch17_height")
revolution7 = body22.newObject("PartDesign::Revolution", "Revolution006")
revolution7.Profile = sketch17
revolution7.ReferenceAxis = (sketch17, ["Axis0"])
revolution7.setExpression("Angle", "Params.revolution7_angle")
doc.recompute()

boolean9 = body22.newObject("PartDesign::Boolean", "Boolean008")
boolean9.Type = "Fuse"
boolean9.addObjects([body21])
body23 = doc.addObject("PartDesign::Body", "Body022")
doc.recompute()

body22.Placement = App.Placement(Vector(0, 215, -190), App.Rotation(Vector(0, 0, 1), 0))
boolean10 = body23.newObject("PartDesign::Boolean", "Boolean009")
boolean10.Type = "Fuse"
boolean10.addObjects([body22])
doc.recompute()

fillet4 = body23.newObject("PartDesign::Fillet", "Fillet003")
fillet4.Base = (boolean10, edges_at(boolean10, [(34, 329, 215)]))
fillet4.setExpression("Radius", "Params.fillet4_radius")
body24 = doc.addObject("PartDesign::Body", "Body023")

sketch18 = body24.newObject("Sketcher::SketchObject", "Sketch017")
sketch18.AttachmentSupport = (doc.getObject("XY_Plane023"), [""])
sketch18.MapMode = "FlatFace"
sketch18.AttachmentOffset = App.Placement(Vector(0, 0, -3), App.Rotation())
add_polygon(sketch18, [(30, 15), (30, 0), (45, 0), (45, 15)])
sketch18.addConstraint(Sketcher.Constraint("Vertical", 0))
sketch18.addConstraint(Sketcher.Constraint("Horizontal", 1))
sketch18.addConstraint(Sketcher.Constraint("Vertical", 2))
sketch18.addConstraint(Sketcher.Constraint("Horizontal", 3))
sketch18.addConstraint(Sketcher.Constraint("PointOnObject", 0, 2, -1))
sketch18.addConstraint(Sketcher.Constraint("Equal", 3, 0))
sketch18.addConstraint(Sketcher.Constraint("DistanceX", 1, 1, 1, 2, Q("15 mm")))
sketch18.addConstraint(Sketcher.Constraint("DistanceX", -1, 1, 0, 2, Q("30 mm")))
sketch18.setExpression("Constraints[10]", "Params.sketch18_width")
pad11 = body24.newObject("PartDesign::Pad", "Pad010")
pad11.Profile = sketch18
pad11.setExpression("Length", "Params.pad11_length")
body25 = doc.addObject("PartDesign::Body", "Body024")

sketch19 = body25.newObject("Sketcher::SketchObject", "Sketch018")
sketch19.AttachmentSupport = (doc.getObject("XY_Plane024"), [""])
sketch19.MapMode = "FlatFace"
sketch19.AttachmentOffset = App.Placement(Vector(0, 0, -3), App.Rotation())
add_polygon(sketch19, [(185, 15), (185, 0), (200, 0), (200, 15)])
sketch19.addConstraint(Sketcher.Constraint("Vertical", 0))
sketch19.addConstraint(Sketcher.Constraint("Horizontal", 1))
sketch19.addConstraint(Sketcher.Constraint("Vertical", 2))
sketch19.addConstraint(Sketcher.Constraint("Horizontal", 3))
sketch19.addConstraint(Sketcher.Constraint("PointOnObject", 0, 2, -1))
sketch19.addConstraint(Sketcher.Constraint("Equal", 3, 0))
sketch19.addConstraint(Sketcher.Constraint("DistanceX", 1, 1, 1, 2, Q("15 mm")))
sketch19.addConstraint(Sketcher.Constraint("DistanceX", -1, 1, 0, 2, Q("185 mm")))
sketch19.setExpression("Constraints[10]", "Params.sketch19_width")
pad12 = body25.newObject("PartDesign::Pad", "Pad011")
pad12.Profile = sketch19
pad12.setExpression("Length", "Params.pad12_length")
body26 = doc.addObject("PartDesign::Body", "Body025")

sketch20 = body26.newObject("Sketcher::SketchObject", "Sketch019")
sketch20.AttachmentSupport = (doc.getObject("XY_Plane025"), [""])
sketch20.MapMode = "FlatFace"
sketch20.AttachmentOffset = App.Placement(Vector(0, 0, -3), App.Rotation())
add_polygon(sketch20, [(30, 445), (30, 430), (45, 430), (45, 445)])
sketch20.addConstraint(Sketcher.Constraint("Vertical", 0))
sketch20.addConstraint(Sketcher.Constraint("Horizontal", 1))
sketch20.addConstraint(Sketcher.Constraint("Vertical", 2))
sketch20.addConstraint(Sketcher.Constraint("Horizontal", 3))
sketch20.addConstraint(Sketcher.Constraint("Equal", 3, 0))
sketch20.addConstraint(Sketcher.Constraint("DistanceX", 1, 1, 1, 2, Q("15 mm")))
sketch20.addConstraint(Sketcher.Constraint("DistanceX", -1, 1, 0, 2, Q("30 mm")))
sketch20.addConstraint(Sketcher.Constraint("DistanceY", -1, 1, 0, 2, Q("430 mm")))
sketch20.setExpression("Constraints[9]", "Params.sketch20_width")
pad13 = body26.newObject("PartDesign::Pad", "Pad012")
pad13.Profile = sketch20
pad13.setExpression("Length", "Params.pad13_length")
body27 = doc.addObject("PartDesign::Body", "Body026")

sketch21 = body27.newObject("Sketcher::SketchObject", "Sketch020")
sketch21.AttachmentSupport = (doc.getObject("XY_Plane026"), [""])
sketch21.MapMode = "FlatFace"
sketch21.AttachmentOffset = App.Placement(Vector(0, 0, -3), App.Rotation())
add_polygon(sketch21, [(185, 445), (185, 430), (200, 430), (200, 445)])
sketch21.addConstraint(Sketcher.Constraint("Vertical", 0))
sketch21.addConstraint(Sketcher.Constraint("Horizontal", 1))
sketch21.addConstraint(Sketcher.Constraint("Vertical", 2))
sketch21.addConstraint(Sketcher.Constraint("Horizontal", 3))
sketch21.addConstraint(Sketcher.Constraint("Equal", 3, 0))
sketch21.addConstraint(Sketcher.Constraint("DistanceX", 1, 1, 1, 2, Q("15 mm")))
sketch21.addConstraint(Sketcher.Constraint("DistanceX", -1, 1, 0, 2, Q("185 mm")))
sketch21.addConstraint(Sketcher.Constraint("DistanceY", -1, 1, 0, 2, Q("430 mm")))
sketch21.setExpression("Constraints[9]", "Params.sketch21_width")
pad14 = body27.newObject("PartDesign::Pad", "Pad013")
pad14.Profile = sketch21
pad14.setExpression("Length", "Params.pad14_length")

doc.recompute()
